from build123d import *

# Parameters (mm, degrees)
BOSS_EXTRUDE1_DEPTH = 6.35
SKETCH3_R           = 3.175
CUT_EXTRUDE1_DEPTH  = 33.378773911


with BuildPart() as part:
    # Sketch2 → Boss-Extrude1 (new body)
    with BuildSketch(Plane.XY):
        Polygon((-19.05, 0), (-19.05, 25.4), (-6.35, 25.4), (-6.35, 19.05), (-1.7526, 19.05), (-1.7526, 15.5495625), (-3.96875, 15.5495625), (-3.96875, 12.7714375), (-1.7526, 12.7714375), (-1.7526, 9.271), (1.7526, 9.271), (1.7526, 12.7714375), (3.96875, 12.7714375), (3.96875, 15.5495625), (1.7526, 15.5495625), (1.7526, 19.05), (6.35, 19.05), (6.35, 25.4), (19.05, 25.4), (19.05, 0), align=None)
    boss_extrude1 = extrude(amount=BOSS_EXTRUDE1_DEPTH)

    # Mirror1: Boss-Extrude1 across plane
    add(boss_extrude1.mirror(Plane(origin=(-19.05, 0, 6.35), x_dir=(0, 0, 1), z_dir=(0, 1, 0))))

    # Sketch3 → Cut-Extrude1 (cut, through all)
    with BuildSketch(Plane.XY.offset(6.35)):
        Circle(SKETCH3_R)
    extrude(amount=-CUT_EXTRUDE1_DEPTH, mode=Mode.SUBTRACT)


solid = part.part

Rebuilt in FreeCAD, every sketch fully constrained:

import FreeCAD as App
import Part
import Sketcher
Q = App.Units.Quantity


def add_polygon(sketch, points):
    """Adds a closed chain of lines whose ends are joined by coincident constraints."""
    first, n = sketch.GeometryCount, len(points)
    for a, b in zip(points, points[1:] + points[:1]):
        sketch.addGeometry(Part.LineSegment(App.Vector(*a, 0), App.Vector(*b, 0)), False)
    for i in range(n):
        sketch.addConstraint(Sketcher.Constraint("Coincident", first + i, 2, first + (i + 1) % n, 1))

doc = App.newDocument("Part")
params = doc.addObject("Spreadsheet::Sheet", "Params")
for row, (alias, value) in enumerate([
    ("sketch1_height", "1 in"),
    ("sketch1_width", "1.5 in"),
    ("sketch1_width2", "0.5 in"),
    ("sketch1_height2", "0.25 in"),
    ("sketch1_width3", "0.181 in"),
    ("pad1_length", "0.25 in"),
    ("sketch2_diameter", "0.25 in"),
], start=1):
    params.set(f"A{row}", alias)
    params.set(f"B{row}", "=" + value)
    params.setAlias(f"B{row}", alias)

body = doc.addObject("PartDesign::Body", "Body")

sketch1 = doc.addObject("Sketcher::SketchObject", "Sketch")
body.addObject(sketch1)
sketch1.AttachmentSupport = (doc.XY_Plane, [""])
sketch1.MapMode = "FlatFace"
add_polygon(sketch1, [(-19.05, 25.4), (-19.05, 0), (19.05, 0), (19.05, 25.4), (6.35, 25.4), (6.35, 19.05), (1.7526, 19.05), (1.7526, 15.549563), (3.96875, 15.549563), (3.96875, 12.771437), (1.7526, 12.771437), (1.7526, 9.271), (-1.7526, 9.271), (-1.7526, 12.771437), (-3.96875, 12.771437), (-3.96875, 15.549563), (-1.7526, 15.549563), (-1.7526, 19.05), (-6.35, 19.05), (-6.35, 25.4)])
sketch1.addConstraint(Sketcher.Constraint("Vertical", 0))
sketch1.addConstraint(Sketcher.Constraint("Horizontal", 1))
sketch1.addConstraint(Sketcher.Constraint("Vertical", 2))
sketch1.addConstraint(Sketcher.Constraint("Horizontal", 3))
sketch1.addConstraint(Sketcher.Constraint("Vertical", 4))
sketch1.addConstraint(Sketcher.Constraint("Horizontal", 5))
sketch1.addConstraint(Sketcher.Constraint("Vertical", 6))
sketch1.addConstraint(Sketcher.Constraint("Horizontal", 7))
sketch1.addConstraint(Sketcher.Constraint("Vertical", 8))
sketch1.addConstraint(Sketcher.Constraint("Horizontal", 9))
sketch1.addConstraint(Sketcher.Constraint("Vertical", 10))
sketch1.addConstraint(Sketcher.Constraint("Horizontal", 11))
sketch1.addConstraint(Sketcher.Constraint("Vertical", 12))
sketch1.addConstraint(Sketcher.Constraint("Horizontal", 13))
sketch1.addConstraint(Sketcher.Constraint("Vertical", 14))
sketch1.addConstraint(Sketcher.Constraint("Horizontal", 15))
sketch1.addConstraint(Sketcher.Constraint("Vertical", 16))
sketch1.addConstraint(Sketcher.Constraint("Horizontal", 17))
sketch1.addConstraint(Sketcher.Constraint("Vertical", 18))
sketch1.addConstraint(Sketcher.Constraint("Horizontal", 19))
sketch1.addConstraint(Sketcher.Constraint("Symmetric", 0, 2, 1, 2, -1, 1))
sketch1.addConstraint(Sketcher.Constraint("Symmetric", 9, 2, 12, 2, -2))
sketch1.addConstraint(Sketcher.Constraint("Symmetric", 7, 2, 14, 2, -2))
sketch1.addConstraint(Sketcher.Constraint("Symmetric", 5, 2, 16, 2, -2))
sketch1.addConstraint(Sketcher.Constraint("Symmetric", 3, 2, 18, 2, -2))
sketch1.addConstraint(Sketcher.Constraint("Vertical", 6, 2, 9, 2))
sketch1.addConstraint(Sketcher.Constraint("Equal", 6, 10))
sketch1.addConstraint(Sketcher.Constraint("DistanceY", 0, 2, 0, 1, Q("1 in")))
sketch1.addConstraint(Sketcher.Constraint("DistanceX", 1, 1, 1, 2, Q("1.5 in")))
sketch1.addConstraint(Sketcher.Constraint("DistanceX", 3, 2, 3, 1, Q("0.5 in")))
sketch1.addConstraint(Sketcher.Constraint("DistanceY", 4, 2, 4, 1, Q("0.25 in")))
sketch1.addConstraint(Sketcher.Constraint("DistanceX", 5, 2, 5, 1, Q("0.181 in")))
sketch1.addConstraint(Sketcher.Constraint("DistanceY", 8, 2, 8, 1, Q("0.109375 in")))
sketch1.addConstraint(Sketcher.Constraint("DistanceX", -1, 1, 7, 2, Q("0.15625 in")))
sketch1.addConstraint(Sketcher.Constraint("DistanceY", -1, 1, 10, 2, Q("0.365 in")))
sketch1.setExpression("Constraints[47]", "Params.sketch1_height")
sketch1.setExpression("Constraints[48]", "Params.sketch1_width")
sketch1.setExpression("Constraints[49]", "Params.sketch1_width2")
sketch1.setExpression("Constraints[50]", "Params.sketch1_height2")
sketch1.setExpression("Constraints[51]", "Params.sketch1_width3")
pad1 = doc.addObject("PartDesign::Pad", "Pad")
body.addObject(pad1)
pad1.Profile = sketch1
pad1.setExpression("Length", "Params.pad1_length")
doc.recompute()

mirrored = doc.addObject("PartDesign::Mirrored", "Mirrored")
body.addObject(mirrored)
mirrored.Originals = [pad1]
mirrored.MirrorPlane = (doc.XZ_Plane, [""])
body.Tip = mirrored

sketch2 = doc.addObject("Sketcher::SketchObject", "Sketch001")
body.addObject(sketch2)
sketch2.AttachmentSupport = (doc.XY_Plane, [""])
sketch2.MapMode = "FlatFace"
sketch2.AttachmentOffset = App.Placement(App.Vector(0, 0, 0.25 * 25.4), App.Rotation())
sketch2.addGeometry(Part.Circle(App.Vector(0, 0, 0), App.Vector(0, 0, 1), 3.175), False)
sketch2.addConstraint(Sketcher.Constraint("Coincident", 0, 3, -1, 1))
sketch2.addConstraint(Sketcher.Constraint("Diameter", 0, Q("0.25 in")))
sketch2.setExpression("Constraints[1]", "Params.sketch2_diameter")
pocket1 = doc.addObject("PartDesign::Pocket", "Pocket")
body.addObject(pocket1)
pocket1.Profile = sketch2
pocket1.Type = "ThroughAll"

doc.recompute()
